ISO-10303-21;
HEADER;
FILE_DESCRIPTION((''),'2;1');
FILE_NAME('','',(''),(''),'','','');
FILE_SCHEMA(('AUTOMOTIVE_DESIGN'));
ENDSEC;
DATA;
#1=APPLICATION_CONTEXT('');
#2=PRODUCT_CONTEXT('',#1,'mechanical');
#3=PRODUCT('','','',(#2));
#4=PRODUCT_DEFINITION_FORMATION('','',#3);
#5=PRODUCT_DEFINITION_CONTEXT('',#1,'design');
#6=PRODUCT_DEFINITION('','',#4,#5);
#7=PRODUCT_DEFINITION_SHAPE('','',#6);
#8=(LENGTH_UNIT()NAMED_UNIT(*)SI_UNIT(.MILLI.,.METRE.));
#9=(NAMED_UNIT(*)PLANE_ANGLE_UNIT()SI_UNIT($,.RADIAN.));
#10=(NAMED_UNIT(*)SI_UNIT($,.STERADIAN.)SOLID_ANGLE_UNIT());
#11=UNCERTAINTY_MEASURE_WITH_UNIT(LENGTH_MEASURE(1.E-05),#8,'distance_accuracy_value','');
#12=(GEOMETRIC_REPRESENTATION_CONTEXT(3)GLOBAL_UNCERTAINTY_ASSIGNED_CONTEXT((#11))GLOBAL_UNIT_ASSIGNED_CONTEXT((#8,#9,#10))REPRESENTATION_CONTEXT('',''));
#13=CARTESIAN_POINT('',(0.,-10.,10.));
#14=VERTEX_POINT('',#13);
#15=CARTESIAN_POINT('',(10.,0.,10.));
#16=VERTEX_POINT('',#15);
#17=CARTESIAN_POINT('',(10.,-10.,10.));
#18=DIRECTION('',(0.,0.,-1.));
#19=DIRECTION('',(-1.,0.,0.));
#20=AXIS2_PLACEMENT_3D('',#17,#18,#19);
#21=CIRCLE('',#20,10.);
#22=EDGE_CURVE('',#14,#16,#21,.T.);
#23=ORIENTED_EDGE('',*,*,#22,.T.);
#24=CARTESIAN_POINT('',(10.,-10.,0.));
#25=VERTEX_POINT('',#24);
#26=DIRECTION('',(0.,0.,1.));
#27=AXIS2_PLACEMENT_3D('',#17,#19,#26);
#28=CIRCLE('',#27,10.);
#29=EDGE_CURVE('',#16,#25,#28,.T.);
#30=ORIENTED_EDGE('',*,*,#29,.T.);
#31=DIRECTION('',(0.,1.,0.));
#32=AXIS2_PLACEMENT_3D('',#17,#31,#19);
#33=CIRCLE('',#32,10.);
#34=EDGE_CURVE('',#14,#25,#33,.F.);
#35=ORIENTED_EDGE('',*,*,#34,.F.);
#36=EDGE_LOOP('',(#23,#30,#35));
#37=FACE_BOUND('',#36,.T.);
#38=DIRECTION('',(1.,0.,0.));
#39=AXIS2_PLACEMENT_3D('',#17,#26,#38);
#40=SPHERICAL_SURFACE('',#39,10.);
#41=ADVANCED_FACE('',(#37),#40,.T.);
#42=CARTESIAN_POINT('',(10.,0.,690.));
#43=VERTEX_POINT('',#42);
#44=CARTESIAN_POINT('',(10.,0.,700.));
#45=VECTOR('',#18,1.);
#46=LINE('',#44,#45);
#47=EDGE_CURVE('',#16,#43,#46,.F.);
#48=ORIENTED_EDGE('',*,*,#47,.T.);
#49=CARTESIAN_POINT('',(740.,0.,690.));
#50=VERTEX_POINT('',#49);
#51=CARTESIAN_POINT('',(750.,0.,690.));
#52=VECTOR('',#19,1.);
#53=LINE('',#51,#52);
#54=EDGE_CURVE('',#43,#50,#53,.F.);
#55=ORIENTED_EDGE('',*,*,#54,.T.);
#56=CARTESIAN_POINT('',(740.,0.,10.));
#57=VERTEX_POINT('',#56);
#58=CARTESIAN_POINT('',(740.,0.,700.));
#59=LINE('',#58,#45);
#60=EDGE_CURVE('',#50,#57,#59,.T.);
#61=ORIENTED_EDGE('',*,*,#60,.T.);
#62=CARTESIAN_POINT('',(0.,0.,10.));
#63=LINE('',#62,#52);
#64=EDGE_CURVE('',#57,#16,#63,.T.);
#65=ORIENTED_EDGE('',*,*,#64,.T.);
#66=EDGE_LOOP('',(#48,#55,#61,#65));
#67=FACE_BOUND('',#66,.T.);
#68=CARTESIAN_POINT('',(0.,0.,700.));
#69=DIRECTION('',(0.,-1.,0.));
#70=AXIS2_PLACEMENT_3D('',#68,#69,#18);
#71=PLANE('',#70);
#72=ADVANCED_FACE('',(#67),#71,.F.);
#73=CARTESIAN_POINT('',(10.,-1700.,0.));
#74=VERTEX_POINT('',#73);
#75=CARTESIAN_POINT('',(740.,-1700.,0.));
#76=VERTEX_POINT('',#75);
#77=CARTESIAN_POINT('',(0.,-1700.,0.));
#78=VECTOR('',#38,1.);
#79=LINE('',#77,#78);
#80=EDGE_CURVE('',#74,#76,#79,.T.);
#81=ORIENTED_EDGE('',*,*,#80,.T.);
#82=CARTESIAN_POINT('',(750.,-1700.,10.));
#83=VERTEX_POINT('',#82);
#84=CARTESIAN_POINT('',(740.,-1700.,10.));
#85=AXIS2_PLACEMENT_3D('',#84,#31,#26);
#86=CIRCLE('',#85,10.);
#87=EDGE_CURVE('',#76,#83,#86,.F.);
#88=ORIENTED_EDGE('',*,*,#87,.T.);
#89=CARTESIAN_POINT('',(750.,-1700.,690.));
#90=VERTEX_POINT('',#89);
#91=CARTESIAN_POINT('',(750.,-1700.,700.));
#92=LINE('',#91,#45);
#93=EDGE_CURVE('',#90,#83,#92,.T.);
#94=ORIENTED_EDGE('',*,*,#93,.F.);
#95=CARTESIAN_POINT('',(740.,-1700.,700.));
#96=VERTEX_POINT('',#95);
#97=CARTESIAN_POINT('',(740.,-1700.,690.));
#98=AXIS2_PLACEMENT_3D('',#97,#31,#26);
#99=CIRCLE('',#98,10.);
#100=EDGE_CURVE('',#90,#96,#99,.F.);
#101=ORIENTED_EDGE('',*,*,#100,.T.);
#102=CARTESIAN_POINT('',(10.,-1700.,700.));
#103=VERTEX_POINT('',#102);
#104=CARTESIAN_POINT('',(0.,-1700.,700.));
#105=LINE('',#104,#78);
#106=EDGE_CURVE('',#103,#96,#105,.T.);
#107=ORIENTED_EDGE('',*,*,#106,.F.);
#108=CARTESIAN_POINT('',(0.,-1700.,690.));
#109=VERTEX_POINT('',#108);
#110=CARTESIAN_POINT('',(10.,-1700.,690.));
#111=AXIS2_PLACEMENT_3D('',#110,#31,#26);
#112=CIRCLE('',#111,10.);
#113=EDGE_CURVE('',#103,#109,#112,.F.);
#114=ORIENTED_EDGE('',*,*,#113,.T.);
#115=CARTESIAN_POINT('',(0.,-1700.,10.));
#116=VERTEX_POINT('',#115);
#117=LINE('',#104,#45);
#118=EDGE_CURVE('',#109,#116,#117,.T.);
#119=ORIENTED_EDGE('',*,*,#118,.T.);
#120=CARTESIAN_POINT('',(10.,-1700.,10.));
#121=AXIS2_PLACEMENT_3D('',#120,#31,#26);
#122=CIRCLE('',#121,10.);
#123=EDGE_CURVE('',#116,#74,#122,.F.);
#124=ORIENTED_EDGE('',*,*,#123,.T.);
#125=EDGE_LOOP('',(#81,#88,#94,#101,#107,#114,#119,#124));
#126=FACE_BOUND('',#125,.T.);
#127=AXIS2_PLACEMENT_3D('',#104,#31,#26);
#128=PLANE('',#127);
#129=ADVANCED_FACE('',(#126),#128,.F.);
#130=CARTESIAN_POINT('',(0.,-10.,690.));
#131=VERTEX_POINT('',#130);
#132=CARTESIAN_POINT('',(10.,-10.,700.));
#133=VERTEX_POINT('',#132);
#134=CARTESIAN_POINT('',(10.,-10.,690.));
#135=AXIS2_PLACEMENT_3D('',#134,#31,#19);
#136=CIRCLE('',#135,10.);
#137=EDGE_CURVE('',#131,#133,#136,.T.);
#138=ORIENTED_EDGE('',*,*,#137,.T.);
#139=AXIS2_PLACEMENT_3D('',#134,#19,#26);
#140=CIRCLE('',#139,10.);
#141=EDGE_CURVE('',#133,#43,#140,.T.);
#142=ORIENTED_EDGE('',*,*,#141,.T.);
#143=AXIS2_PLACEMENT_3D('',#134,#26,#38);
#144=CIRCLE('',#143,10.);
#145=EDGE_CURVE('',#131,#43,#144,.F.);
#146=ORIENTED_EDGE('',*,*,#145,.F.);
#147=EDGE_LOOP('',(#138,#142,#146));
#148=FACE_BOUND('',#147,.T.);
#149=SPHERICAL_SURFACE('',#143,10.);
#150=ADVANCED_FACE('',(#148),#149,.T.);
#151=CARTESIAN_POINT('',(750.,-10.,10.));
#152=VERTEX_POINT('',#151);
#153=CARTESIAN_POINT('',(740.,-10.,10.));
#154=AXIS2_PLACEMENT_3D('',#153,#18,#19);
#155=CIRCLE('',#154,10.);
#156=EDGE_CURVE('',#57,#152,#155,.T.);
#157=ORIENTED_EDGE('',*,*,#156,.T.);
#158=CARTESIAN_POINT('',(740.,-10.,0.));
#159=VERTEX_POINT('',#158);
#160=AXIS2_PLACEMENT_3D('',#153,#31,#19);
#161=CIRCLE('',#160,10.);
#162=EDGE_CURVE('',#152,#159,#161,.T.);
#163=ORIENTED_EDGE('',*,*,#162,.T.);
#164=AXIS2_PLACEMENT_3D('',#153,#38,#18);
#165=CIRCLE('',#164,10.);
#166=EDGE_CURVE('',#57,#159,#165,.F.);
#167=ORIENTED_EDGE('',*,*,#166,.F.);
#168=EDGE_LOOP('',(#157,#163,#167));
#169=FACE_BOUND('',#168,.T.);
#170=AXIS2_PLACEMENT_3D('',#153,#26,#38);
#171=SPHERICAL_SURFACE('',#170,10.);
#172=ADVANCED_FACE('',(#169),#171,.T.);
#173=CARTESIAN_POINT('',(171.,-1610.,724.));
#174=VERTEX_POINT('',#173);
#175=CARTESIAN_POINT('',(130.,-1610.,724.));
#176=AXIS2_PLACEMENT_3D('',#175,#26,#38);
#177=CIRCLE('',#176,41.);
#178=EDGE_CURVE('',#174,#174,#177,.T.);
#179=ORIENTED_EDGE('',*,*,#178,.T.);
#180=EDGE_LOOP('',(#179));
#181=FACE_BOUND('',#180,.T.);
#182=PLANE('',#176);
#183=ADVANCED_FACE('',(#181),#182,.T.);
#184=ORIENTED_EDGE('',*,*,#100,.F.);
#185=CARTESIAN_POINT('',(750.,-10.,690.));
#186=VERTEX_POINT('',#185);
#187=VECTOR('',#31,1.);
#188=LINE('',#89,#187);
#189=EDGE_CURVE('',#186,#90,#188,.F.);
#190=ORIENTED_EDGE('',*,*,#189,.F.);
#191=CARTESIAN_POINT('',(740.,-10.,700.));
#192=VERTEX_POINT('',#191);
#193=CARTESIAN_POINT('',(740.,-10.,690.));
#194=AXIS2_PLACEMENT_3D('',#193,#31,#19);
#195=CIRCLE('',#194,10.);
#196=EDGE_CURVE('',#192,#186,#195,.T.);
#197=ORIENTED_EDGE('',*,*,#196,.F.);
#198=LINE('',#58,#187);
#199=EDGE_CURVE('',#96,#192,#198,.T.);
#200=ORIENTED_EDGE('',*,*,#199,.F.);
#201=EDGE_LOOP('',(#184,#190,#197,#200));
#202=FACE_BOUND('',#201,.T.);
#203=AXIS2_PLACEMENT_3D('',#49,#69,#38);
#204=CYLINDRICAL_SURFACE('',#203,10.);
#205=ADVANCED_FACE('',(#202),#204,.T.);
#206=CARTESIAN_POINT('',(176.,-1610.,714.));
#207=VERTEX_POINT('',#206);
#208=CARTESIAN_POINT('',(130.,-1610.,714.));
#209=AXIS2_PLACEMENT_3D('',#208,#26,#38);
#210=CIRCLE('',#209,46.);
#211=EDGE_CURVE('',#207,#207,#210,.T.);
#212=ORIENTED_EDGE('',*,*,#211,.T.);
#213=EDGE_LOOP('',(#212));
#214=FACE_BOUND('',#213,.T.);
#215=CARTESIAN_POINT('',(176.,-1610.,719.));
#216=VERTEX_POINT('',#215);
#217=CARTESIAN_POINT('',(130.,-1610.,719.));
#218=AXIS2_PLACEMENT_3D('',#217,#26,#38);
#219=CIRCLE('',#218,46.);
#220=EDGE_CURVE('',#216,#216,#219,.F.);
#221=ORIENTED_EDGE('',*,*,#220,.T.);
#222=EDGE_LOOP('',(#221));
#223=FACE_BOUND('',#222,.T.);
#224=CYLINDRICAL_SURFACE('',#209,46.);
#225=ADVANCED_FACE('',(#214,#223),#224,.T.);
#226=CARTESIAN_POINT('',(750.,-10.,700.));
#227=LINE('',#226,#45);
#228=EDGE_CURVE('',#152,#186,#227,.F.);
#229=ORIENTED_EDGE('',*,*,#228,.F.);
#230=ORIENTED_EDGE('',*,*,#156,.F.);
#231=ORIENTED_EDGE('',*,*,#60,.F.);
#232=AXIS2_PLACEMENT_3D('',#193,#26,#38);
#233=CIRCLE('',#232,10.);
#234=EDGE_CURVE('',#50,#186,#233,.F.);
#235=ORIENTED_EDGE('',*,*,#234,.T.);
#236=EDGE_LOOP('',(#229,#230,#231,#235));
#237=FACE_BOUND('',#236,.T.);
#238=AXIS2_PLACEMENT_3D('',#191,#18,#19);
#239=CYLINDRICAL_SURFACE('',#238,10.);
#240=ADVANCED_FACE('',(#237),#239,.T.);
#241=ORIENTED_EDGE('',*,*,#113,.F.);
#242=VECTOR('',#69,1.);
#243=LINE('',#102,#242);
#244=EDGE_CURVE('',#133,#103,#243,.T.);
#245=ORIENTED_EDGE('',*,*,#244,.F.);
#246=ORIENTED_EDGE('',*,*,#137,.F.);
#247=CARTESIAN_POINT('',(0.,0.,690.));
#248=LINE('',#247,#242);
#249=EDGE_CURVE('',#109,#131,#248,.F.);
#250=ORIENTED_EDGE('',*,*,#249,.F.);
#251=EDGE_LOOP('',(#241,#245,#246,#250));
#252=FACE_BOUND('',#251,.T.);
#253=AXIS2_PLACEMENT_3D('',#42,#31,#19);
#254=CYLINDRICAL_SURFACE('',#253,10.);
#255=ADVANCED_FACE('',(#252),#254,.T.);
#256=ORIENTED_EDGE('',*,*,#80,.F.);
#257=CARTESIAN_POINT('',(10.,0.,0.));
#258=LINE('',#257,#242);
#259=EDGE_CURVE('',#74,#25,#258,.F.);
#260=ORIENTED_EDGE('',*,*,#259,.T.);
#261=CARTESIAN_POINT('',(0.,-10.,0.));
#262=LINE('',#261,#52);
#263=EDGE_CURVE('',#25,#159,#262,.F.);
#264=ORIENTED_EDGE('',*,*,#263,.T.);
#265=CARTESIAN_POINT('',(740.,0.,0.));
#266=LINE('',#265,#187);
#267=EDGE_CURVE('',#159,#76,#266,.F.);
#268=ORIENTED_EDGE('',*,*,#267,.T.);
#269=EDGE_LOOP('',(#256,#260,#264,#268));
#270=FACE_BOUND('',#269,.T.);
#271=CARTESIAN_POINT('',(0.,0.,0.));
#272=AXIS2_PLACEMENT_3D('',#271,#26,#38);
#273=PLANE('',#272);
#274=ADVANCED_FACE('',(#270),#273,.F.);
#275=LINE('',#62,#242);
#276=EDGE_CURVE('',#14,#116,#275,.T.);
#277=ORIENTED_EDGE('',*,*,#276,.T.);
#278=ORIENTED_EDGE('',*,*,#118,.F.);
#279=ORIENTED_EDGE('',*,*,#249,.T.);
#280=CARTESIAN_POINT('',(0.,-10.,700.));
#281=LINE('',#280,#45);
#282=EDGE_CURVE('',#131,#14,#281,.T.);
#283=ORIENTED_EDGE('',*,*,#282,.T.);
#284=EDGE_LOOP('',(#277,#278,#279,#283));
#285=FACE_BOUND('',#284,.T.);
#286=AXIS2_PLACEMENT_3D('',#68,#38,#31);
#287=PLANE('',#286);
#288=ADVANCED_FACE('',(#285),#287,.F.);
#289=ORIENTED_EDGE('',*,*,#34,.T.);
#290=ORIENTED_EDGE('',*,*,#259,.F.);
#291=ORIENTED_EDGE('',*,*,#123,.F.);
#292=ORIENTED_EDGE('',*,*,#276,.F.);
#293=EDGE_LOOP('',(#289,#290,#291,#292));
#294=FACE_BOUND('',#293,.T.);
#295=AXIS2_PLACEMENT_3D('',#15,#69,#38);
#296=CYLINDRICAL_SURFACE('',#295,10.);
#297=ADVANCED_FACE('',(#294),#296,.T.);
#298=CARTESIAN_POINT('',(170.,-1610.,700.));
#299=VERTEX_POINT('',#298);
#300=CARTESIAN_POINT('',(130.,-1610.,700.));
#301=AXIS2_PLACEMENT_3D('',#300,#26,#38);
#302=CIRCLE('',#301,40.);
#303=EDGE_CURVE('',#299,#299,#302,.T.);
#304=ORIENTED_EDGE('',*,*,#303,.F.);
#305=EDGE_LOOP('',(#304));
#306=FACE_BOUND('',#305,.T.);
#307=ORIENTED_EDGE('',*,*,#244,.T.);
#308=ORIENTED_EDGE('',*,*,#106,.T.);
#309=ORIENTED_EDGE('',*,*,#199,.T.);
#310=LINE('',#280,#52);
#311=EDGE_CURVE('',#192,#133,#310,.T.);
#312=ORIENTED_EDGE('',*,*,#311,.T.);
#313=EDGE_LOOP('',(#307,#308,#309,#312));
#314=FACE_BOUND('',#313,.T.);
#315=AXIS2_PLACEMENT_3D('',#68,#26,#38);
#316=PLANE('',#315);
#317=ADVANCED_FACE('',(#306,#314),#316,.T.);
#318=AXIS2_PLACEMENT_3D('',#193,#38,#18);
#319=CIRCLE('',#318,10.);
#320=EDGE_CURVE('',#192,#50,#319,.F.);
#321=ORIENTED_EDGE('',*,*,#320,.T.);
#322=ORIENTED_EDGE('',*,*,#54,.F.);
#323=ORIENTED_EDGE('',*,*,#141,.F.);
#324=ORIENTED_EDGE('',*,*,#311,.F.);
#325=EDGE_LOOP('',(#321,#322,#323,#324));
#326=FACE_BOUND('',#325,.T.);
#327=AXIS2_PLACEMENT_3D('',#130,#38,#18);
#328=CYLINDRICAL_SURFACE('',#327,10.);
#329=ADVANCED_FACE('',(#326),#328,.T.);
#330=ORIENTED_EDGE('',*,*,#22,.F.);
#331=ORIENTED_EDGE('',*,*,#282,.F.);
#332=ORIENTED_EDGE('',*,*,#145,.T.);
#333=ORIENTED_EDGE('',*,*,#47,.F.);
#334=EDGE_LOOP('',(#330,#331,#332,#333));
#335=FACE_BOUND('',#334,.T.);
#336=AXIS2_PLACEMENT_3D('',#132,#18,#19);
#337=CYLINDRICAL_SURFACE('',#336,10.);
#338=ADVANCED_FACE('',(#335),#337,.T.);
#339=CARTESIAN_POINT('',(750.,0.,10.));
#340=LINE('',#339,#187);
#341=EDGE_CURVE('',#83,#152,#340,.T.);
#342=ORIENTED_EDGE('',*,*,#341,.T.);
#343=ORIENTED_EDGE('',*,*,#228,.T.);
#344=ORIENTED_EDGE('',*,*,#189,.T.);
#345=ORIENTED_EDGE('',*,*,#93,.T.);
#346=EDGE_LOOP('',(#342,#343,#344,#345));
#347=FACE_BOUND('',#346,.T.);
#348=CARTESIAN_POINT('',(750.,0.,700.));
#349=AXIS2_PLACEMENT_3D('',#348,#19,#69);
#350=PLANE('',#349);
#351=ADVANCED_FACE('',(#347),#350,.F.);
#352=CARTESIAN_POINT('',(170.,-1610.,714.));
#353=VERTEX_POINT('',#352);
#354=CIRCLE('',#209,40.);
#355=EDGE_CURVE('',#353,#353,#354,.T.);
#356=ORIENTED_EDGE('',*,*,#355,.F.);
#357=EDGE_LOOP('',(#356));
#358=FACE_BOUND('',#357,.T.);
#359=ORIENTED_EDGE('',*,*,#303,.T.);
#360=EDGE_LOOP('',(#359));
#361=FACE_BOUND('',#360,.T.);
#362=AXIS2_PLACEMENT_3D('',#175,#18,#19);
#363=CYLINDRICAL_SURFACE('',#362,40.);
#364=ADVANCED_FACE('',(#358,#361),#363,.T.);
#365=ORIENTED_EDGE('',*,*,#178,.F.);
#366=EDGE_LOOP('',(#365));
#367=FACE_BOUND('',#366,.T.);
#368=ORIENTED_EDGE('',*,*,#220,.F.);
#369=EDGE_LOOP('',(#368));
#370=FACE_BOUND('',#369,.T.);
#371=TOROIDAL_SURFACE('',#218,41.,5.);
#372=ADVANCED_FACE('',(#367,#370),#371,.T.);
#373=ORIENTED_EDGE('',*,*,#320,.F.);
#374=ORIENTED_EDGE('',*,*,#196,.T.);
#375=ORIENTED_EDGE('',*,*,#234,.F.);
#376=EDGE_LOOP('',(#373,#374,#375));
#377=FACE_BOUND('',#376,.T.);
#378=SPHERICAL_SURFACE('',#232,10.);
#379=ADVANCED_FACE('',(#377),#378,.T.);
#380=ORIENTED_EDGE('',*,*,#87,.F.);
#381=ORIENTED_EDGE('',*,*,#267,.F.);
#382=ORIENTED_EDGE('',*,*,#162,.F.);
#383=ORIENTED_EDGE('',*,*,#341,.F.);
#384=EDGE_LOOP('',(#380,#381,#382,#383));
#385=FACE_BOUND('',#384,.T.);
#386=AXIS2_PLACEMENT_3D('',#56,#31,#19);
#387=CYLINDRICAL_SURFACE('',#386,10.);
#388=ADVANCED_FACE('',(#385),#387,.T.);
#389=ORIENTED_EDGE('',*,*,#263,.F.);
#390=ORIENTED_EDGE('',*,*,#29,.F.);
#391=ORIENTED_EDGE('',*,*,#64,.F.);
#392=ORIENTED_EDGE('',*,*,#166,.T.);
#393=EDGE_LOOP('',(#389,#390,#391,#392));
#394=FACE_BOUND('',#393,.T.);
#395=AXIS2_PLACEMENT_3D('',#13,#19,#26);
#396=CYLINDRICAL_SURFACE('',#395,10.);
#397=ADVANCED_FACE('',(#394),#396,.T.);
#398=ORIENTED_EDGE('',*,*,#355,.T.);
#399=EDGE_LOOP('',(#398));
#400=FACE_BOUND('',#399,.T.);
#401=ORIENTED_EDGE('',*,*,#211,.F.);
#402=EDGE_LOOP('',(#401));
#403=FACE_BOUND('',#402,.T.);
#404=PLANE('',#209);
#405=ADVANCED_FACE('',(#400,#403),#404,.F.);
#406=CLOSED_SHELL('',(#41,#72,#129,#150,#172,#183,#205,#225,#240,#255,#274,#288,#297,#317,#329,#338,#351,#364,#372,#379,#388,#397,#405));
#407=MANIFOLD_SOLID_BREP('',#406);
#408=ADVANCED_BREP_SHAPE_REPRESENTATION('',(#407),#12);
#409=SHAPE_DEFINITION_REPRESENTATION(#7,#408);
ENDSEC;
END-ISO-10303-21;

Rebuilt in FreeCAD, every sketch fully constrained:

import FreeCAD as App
import Part
import Sketcher


def edges_at(feature, points):
    """Names of the edges that pass closest to the given points."""
    edges = feature.Shape.Edges
    near = lambda p: min(range(len(edges)), key=lambda i: edges[i].distToShape(Part.Vertex(*p))[0])
    return sorted({f"Edge{near(p) + 1}" for p in points})


def add_polygon(sketch, points):
    """Adds a closed chain of lines whose ends are joined by coincident constraints."""
    first, n = sketch.GeometryCount, len(points)
    for a, b in zip(points, points[1:] + points[:1]):
        sketch.addGeometry(Part.LineSegment(App.Vector(*a, 0), App.Vector(*b, 0)), False)
    for i in range(n):
        sketch.addConstraint(Sketcher.Constraint("Coincident", first + i, 2, first + (i + 1) % n, 1))

doc = App.newDocument("Part")
body = doc.addObject("PartDesign::Body", "Body")

sketch1 = body.newObject("Sketcher::SketchObject", "Sketch")
sketch1.AttachmentSupport = (doc.getObject("XY_Plane"), [""])
sketch1.MapMode = "FlatFace"
add_polygon(sketch1, [(0, 0), (0, -1700), (750, -1700), (750, 0)])
sketch1.addConstraint([
    Sketcher.Constraint("Vertical", 0),
    Sketcher.Constraint("Horizontal", 1),
    Sketcher.Constraint("Vertical", 2),
    Sketcher.Constraint("Horizontal", 3),
    Sketcher.Constraint("Coincident", 3, 2, -1, 1),
    Sketcher.Constraint("DistanceX", 1, 1, 1, 2, 750.0),
    Sketcher.Constraint("DistanceY", 0, 2, 0, 1, 1700.0),
])
pad1 = body.newObject("PartDesign::Pad", "Pad")
pad1.Profile = sketch1
pad1.Length = 700
doc.recompute()

fillet = body.newObject("PartDesign::Fillet", "Fillet")
fillet.Base = (pad1, edges_at(pad1, [
    (750, -850, 700),
    (375, 0, 700),
    (0, -850, 700),
    (375, 0, 0),
    (750, -850, 0),
    (0, -850, 0),
    (0, 0, 350),
    (750, 0, 350),
]))
fillet.Radius = 10

sketch2 = body.newObject("Sketcher::SketchObject", "Sketch001")
sketch2.AttachmentSupport = (doc.getObject("XY_Plane"), [""])
sketch2.MapMode = "FlatFace"
sketch2.AttachmentOffset = App.Placement(App.Vector(0, 0, 700), App.Rotation())
sketch2.addGeometry(Part.Circle(App.Vector(130, -1610, 0), App.Vector(0, 0, 1), 40), False)
sketch2.addConstraint([
    Sketcher.Constraint("Diameter", 0, 80.0),
    Sketcher.Constraint("DistanceX", -1, 1, 0, 3, 130.0),
    Sketcher.Constraint("DistanceY", 0, 3, -1, 1, 1610.0),
])
pad2 = body.newObject("PartDesign::Pad", "Pad001")
pad2.Profile = sketch2
pad2.Length = 24

sketch3 = body.newObject("Sketcher::SketchObject", "Sketch002")
sketch3.AttachmentSupport = (doc.getObject("XY_Plane"), [""])
sketch3.MapMode = "FlatFace"
sketch3.AttachmentOffset = App.Placement(App.Vector(0, 0, 724), App.Rotation())
sketch3.addGeometry(Part.Circle(App.Vector(130, -1610, 0), App.Vector(0, 0, 1), 46), False)
sketch3.addConstraint([
    Sketcher.Constraint("Diameter", 0, 92.0),
    Sketcher.Constraint("DistanceX", -1, 1, 0, 3, 130.0),
    Sketcher.Constraint("DistanceY", 0, 3, -1, 1, 1610.0),
])
pad3 = body.newObject("PartDesign::Pad", "Pad002")
pad3.Profile = sketch3
pad3.Length = 10
pad3.Reversed = True
doc.recompute()

fillet2 = body.newObject("PartDesign::Fillet", "Fillet001")
fillet2.Base = (pad3, edges_at(pad3, [(84, -1610, 724)]))
fillet2.Radius = 5

doc.recompute()
